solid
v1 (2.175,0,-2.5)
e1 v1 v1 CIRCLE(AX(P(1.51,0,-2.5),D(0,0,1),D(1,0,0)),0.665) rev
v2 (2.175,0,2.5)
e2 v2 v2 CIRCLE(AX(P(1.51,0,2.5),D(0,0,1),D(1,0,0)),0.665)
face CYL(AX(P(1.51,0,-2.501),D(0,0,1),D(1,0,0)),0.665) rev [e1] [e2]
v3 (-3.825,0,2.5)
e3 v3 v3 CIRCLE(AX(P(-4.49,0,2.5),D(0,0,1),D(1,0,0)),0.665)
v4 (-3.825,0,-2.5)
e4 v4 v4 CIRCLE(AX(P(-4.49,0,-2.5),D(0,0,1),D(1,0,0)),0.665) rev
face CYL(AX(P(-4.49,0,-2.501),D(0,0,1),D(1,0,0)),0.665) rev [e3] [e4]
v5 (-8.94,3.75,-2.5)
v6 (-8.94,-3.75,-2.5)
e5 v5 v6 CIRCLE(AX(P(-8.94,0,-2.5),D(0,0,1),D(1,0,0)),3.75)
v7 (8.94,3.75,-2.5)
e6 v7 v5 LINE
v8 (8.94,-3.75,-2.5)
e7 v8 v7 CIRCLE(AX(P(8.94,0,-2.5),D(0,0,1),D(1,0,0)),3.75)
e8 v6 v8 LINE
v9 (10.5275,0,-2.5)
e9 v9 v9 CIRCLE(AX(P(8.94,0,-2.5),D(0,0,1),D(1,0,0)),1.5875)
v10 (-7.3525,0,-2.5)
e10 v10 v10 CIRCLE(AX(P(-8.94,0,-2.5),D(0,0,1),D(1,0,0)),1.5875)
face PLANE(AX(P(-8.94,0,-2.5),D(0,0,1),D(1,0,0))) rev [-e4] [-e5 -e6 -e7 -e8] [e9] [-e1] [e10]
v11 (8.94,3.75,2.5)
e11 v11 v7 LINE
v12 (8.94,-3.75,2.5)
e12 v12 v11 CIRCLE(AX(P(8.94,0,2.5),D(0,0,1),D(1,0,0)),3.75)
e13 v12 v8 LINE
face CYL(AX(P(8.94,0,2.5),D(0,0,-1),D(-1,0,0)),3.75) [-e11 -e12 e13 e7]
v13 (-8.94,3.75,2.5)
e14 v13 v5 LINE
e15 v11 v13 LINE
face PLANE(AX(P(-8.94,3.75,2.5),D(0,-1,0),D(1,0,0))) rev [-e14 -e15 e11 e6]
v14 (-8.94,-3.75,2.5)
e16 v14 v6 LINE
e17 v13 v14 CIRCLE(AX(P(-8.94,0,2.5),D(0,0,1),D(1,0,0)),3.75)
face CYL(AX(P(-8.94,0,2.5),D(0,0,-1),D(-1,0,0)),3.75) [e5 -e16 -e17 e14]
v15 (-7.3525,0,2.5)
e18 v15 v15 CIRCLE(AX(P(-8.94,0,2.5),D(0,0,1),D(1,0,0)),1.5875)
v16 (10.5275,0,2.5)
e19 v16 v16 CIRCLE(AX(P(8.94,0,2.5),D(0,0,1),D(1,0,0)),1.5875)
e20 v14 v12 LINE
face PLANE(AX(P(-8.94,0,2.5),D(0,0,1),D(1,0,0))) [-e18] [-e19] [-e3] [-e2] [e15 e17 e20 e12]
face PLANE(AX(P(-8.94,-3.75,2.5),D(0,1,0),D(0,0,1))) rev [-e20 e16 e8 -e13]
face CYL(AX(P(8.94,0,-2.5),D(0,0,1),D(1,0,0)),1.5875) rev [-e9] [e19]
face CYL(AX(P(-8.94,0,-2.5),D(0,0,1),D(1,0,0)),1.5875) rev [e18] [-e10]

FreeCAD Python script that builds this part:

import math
import FreeCAD as App
import Part
import Sketcher

V = App.Vector

doc = App.newDocument("Part")
body = doc.addObject("PartDesign::Body", "Body")

# Sketch on XY plane
sketch1 = body.newObject("Sketcher::SketchObject", "Sketch")
sketch1.AttachmentSupport = (doc.getObject("XY_Plane"), [""])
sketch1.MapMode = "FlatFace"
sketch1.addGeometry(Part.LineSegment(V(8.94, 3.75, 0), V(-8.94, 3.75, 0)), False)
sketch1.addGeometry(Part.ArcOfCircle(Part.Circle(V(-8.94, 0, 0), V(0, 0, 1), 3.75), math.radians(90), math.radians(270)), False)
sketch1.addGeometry(Part.LineSegment(V(-8.94, -3.75, 0), V(8.94, -3.75, 0)), False)
sketch1.addGeometry(Part.ArcOfCircle(Part.Circle(V(8.94, 0, 0), V(0, 0, 1), 3.75), math.radians(-90), math.radians(90)), False)
sketch1.addConstraint(Sketcher.Constraint("Tangent", 0, 2, 1, 1))
sketch1.addConstraint(Sketcher.Constraint("Tangent", 1, 2, 2, 1))
sketch1.addConstraint(Sketcher.Constraint("Tangent", 2, 2, 3, 1))
sketch1.addConstraint(Sketcher.Constraint("Tangent", 3, 2, 0, 1))
sketch1.addConstraint(Sketcher.Constraint("Horizontal", 0))
sketch1.addConstraint(Sketcher.Constraint("Horizontal", 2))
sketch1.addConstraint(Sketcher.Constraint("Symmetric", 1, 3, 3, 3, -1, 1))
sketch1.addConstraint(Sketcher.Constraint("Radius", 1, 3.75))
sketch1.addConstraint(Sketcher.Constraint("DistanceX", 0, 2, 0, 1, 17.88))
pad1 = body.newObject("PartDesign::Pad", "Pad")
pad1.Profile = sketch1
pad1.Length = 5
pad1.Midplane = True

# Sketch on XY plane
sketch2 = body.newObject("Sketcher::SketchObject", "Sketch001")
sketch2.AttachmentSupport = (doc.getObject("XY_Plane"), [""])
sketch2.MapMode = "FlatFace"
sketch2.AttachmentOffset = App.Placement(V(0, 0, 2.5), App.Rotation())
sketch2.addGeometry(Part.Circle(V(-8.94, 0, 0), V(0, 0, 1), 1.5875), False)
sketch2.addGeometry(Part.Circle(V(8.94, 0, 0), V(0, 0, 1), 1.5875), False)
sketch2.addConstraint(Sketcher.Constraint("Equal", 0, 1))
sketch2.addConstraint(Sketcher.Constraint("Symmetric", 0, 3, 1, 3, -1, 1))
sketch2.addConstraint(Sketcher.Constraint("PointOnObject", 0, 3, -1))
sketch2.addConstraint(Sketcher.Constraint("Diameter", 0, 3.175))
sketch2.addConstraint(Sketcher.Constraint("DistanceX", 0, 3, -1, 1, 8.94))
pocket1 = body.newObject("PartDesign::Pocket", "Pocket")
pocket1.Profile = sketch2
pocket1.Type = "ThroughAll"

# Sketch on XY plane
sketch3 = body.newObject("Sketcher::SketchObject", "Sketch002")
sketch3.AttachmentSupport = (doc.getObject("XY_Plane"), [""])
sketch3.MapMode = "FlatFace"
sketch3.AttachmentOffset = App.Placement(V(0, 0, 2.5), App.Rotation())
sketch3.addGeometry(Part.Circle(V(-4.49, 0, 0), V(0, 0, 1), 0.665), False)
sketch3.addConstraint(Sketcher.Constraint("PointOnObject", 0, 3, -1))
sketch3.addConstraint(Sketcher.Constraint("Diameter", 0, 1.33))
sketch3.addConstraint(Sketcher.Constraint("DistanceX", 0, 3, -1, 1, 4.49))
pocket2 = body.newObject("PartDesign::Pocket", "Pocket001")
pocket2.Profile = sketch3
pocket2.Type = "UpToFirst"

# Sketch on XY plane
sketch4 = body.newObject("Sketcher::SketchObject", "Sketch003")
sketch4.AttachmentSupport = (doc.getObject("XY_Plane"), [""])
sketch4.MapMode = "FlatFace"
sketch4.AttachmentOffset = App.Placement(V(0, 0, 2.5), App.Rotation())
sketch4.addGeometry(Part.Circle(V(1.51, 0, 0), V(0, 0, 1), 0.665), False)
sketch4.addConstraint(Sketcher.Constraint("PointOnObject", 0, 3, -1))
sketch4.addConstraint(Sketcher.Constraint("Diameter", 0, 1.33))
sketch4.addConstraint(Sketcher.Constraint("DistanceX", -1, 1, 0, 3, 1.51))
pocket3 = body.newObject("PartDesign::Pocket", "Pocket002")
pocket3.Profile = sketch4
pocket3.Type = "UpToFirst"

doc.recompute()
